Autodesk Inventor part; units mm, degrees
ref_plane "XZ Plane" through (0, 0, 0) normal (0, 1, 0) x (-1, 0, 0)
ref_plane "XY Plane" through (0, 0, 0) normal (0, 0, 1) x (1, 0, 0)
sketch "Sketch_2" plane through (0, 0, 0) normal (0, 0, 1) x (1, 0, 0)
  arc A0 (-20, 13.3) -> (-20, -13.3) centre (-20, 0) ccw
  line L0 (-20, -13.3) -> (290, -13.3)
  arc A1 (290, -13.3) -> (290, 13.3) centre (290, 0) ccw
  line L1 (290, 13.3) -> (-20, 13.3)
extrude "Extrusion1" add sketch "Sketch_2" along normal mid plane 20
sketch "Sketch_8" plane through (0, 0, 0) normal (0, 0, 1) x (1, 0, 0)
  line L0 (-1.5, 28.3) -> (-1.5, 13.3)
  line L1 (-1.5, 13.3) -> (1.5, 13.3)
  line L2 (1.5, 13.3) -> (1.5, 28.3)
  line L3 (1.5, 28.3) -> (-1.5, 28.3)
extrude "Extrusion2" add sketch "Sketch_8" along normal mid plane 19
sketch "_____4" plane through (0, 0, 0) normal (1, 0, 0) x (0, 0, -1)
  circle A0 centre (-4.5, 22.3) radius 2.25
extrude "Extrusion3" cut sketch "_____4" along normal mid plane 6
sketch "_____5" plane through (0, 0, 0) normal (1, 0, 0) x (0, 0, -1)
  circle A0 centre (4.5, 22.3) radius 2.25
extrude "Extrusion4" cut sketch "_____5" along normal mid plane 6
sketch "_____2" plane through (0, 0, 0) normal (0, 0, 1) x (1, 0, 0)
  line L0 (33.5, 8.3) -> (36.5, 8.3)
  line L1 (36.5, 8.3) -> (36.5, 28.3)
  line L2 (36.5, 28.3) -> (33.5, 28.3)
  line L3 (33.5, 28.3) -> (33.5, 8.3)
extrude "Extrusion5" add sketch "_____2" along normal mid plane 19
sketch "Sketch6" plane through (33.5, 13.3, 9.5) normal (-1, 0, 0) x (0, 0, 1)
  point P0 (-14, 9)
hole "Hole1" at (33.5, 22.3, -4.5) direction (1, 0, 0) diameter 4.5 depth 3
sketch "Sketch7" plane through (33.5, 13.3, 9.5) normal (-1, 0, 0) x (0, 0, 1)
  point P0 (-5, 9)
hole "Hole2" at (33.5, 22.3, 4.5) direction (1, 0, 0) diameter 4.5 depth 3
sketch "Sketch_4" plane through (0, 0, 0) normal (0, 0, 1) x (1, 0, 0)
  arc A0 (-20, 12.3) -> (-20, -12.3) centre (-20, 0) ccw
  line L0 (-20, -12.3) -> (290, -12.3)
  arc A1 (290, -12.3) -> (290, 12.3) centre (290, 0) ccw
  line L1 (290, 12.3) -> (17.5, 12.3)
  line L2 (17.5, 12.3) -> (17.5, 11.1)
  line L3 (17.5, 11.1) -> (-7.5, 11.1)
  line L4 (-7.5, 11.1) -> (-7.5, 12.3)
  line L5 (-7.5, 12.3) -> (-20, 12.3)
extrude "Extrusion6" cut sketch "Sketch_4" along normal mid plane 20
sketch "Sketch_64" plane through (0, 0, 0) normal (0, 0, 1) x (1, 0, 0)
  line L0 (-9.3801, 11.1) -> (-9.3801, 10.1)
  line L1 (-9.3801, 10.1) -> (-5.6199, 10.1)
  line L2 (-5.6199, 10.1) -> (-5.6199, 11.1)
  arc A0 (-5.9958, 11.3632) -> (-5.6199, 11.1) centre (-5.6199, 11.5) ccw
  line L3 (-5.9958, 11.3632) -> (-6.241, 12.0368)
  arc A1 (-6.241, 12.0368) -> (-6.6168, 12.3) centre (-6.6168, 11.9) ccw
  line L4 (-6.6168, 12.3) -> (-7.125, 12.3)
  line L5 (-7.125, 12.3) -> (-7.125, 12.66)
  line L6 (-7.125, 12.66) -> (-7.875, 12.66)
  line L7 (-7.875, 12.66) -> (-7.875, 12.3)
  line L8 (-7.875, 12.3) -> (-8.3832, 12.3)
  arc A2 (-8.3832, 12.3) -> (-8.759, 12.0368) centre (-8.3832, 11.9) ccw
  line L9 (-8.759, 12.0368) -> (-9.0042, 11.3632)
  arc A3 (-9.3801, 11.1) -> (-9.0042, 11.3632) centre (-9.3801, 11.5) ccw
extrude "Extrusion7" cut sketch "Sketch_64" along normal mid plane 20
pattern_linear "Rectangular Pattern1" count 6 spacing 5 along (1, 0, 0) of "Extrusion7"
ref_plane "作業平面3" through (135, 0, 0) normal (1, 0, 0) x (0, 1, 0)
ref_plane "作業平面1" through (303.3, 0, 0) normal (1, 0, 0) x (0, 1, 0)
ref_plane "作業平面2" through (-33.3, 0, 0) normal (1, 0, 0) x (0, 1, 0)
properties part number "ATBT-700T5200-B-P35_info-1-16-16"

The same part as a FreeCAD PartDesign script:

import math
import FreeCAD as App
import Part
import Sketcher
from FreeCAD import Vector

doc = App.newDocument("Part")
body = doc.addObject("PartDesign::Body", "Body")

sketch1 = doc.addObject("Sketcher::SketchObject", "Sketch")
body.addObject(sketch1)
sketch1.AttachmentSupport = (doc.XY_Plane, [""])
sketch1.MapMode = "FlatFace"
sketch1.addGeometry([
    Part.LineSegment(Vector(290, 13, 0), Vector(-20, 13, 0)),
    Part.ArcOfCircle(Part.Circle(Vector(-20, 0, 0), Vector(0, 0, 1), 13), math.radians(90), math.radians(270)),
    Part.LineSegment(Vector(-20, -13, 0), Vector(290, -13, 0)),
    Part.ArcOfCircle(Part.Circle(Vector(290, 0, 0), Vector(0, 0, 1), 13), math.radians(-90), math.radians(90)),
], False)
sketch1.addConstraint([
    Sketcher.Constraint("Tangent", 0, 2, 1, 1),
    Sketcher.Constraint("Tangent", 1, 2, 2, 1),
    Sketcher.Constraint("Tangent", 2, 2, 3, 1),
    Sketcher.Constraint("Tangent", 3, 2, 0, 1),
    Sketcher.Constraint("Horizontal", 0),
    Sketcher.Constraint("Horizontal", 2),
    Sketcher.Constraint("PointOnObject", 1, 3, -1),
    Sketcher.Constraint("Radius", 1, 13.3),
    Sketcher.Constraint("DistanceX", 0, 2, 0, 1, 310.0),
    Sketcher.Constraint("DistanceX", 1, 3, -1, 1, 20.0),
])
pad1 = doc.addObject("PartDesign::Pad", "Pad")
body.addObject(pad1)
pad1.Profile = sketch1
pad1.Length = 20
pad1.Midplane = True

sketch2 = doc.addObject("Sketcher::SketchObject", "Sketch001")
body.addObject(sketch2)
sketch2.AttachmentSupport = (doc.XY_Plane, [""])
sketch2.MapMode = "FlatFace"
sketch2.addGeometry([
    Part.LineSegment(Vector(1.5, 28.3, 0), Vector(-1.5, 28.3, 0)),
    Part.LineSegment(Vector(-1.5, 28.3, 0), Vector(-1.5, 13.3, 0)),
    Part.LineSegment(Vector(-1.5, 13.3, 0), Vector(1.5, 13.3, 0)),
    Part.LineSegment(Vector(1.5, 13.3, 0), Vector(1.5, 28.3, 0)),
], False)
sketch2.addConstraint([
    Sketcher.Constraint("Coincident", 0, 2, 1, 1),
    Sketcher.Constraint("Coincident", 1, 2, 2, 1),
    Sketcher.Constraint("Coincident", 2, 2, 3, 1),
    Sketcher.Constraint("Coincident", 3, 2, 0, 1),
    Sketcher.Constraint("Horizontal", 0),
    Sketcher.Constraint("Vertical", 1),
    Sketcher.Constraint("Horizontal", 2),
    Sketcher.Constraint("Vertical", 3),
    Sketcher.Constraint("DistanceX", 0, 2, 0, 1, 3.0),
    Sketcher.Constraint("DistanceY", 1, 2, 1, 1, 15.0),
    Sketcher.Constraint("DistanceX", 0, 2, -1, 1, 1.5),
    Sketcher.Constraint("DistanceY", -1, 1, 0, 2, 28.3),
])
pad2 = doc.addObject("PartDesign::Pad", "Pad001")
body.addObject(pad2)
pad2.Profile = sketch2
pad2.Length = 19
pad2.Midplane = True

sketch3 = doc.addObject("Sketcher::SketchObject", "Sketch002")
body.addObject(sketch3)
sketch3.AttachmentSupport = (doc.YZ_Plane, [""])
sketch3.MapMode = "FlatFace"
sketch3.addGeometry(Part.Circle(Vector(22.3, 4.5, 0), Vector(0, 0, 1), 2.2), False)
sketch3.addConstraint([
    Sketcher.Constraint("Diameter", 0, 4.5),
    Sketcher.Constraint("DistanceX", -1, 1, 0, 3, 22.3),
    Sketcher.Constraint("DistanceY", -1, 1, 0, 3, 4.5),
])
pocket1 = doc.addObject("PartDesign::Pocket", "Pocket")
body.addObject(pocket1)
pocket1.Profile = sketch3
pocket1.Length = 6
pocket1.Midplane = True

sketch4 = doc.addObject("Sketcher::SketchObject", "Sketch003")
body.addObject(sketch4)
sketch4.AttachmentSupport = (doc.YZ_Plane, [""])
sketch4.MapMode = "FlatFace"
sketch4.addGeometry(Part.Circle(Vector(22.3, -4.5, 0), Vector(0, 0, 1), 2.2), False)
sketch4.addConstraint([
    Sketcher.Constraint("Diameter", 0, 4.5),
    Sketcher.Constraint("DistanceX", -1, 1, 0, 3, 22.3),
    Sketcher.Constraint("DistanceY", 0, 3, -1, 1, 4.5),
])
pocket2 = doc.addObject("PartDesign::Pocket", "Pocket001")
body.addObject(pocket2)
pocket2.Profile = sketch4
pocket2.Length = 6
pocket2.Midplane = True

sketch5 = doc.addObject("Sketcher::SketchObject", "Sketch004")
body.addObject(sketch5)
sketch5.AttachmentSupport = (doc.XY_Plane, [""])
sketch5.MapMode = "FlatFace"
sketch5.addGeometry([
    Part.LineSegment(Vector(33.5, 28.3, 0), Vector(33.5, 8.3, 0)),
    Part.LineSegment(Vector(33.5, 8.3, 0), Vector(36.5, 8.3, 0)),
    Part.LineSegment(Vector(36.5, 8.3, 0), Vector(36.5, 28.3, 0)),
    Part.LineSegment(Vector(36.5, 28.3, 0), Vector(33.5, 28.3, 0)),
], False)
sketch5.addConstraint([
    Sketcher.Constraint("Coincident", 0, 2, 1, 1),
    Sketcher.Constraint("Coincident", 1, 2, 2, 1),
    Sketcher.Constraint("Coincident", 2, 2, 3, 1),
    Sketcher.Constraint("Coincident", 3, 2, 0, 1),
    Sketcher.Constraint("Vertical", 0),
    Sketcher.Constraint("Horizontal", 1),
    Sketcher.Constraint("Vertical", 2),
    Sketcher.Constraint("Horizontal", 3),
    Sketcher.Constraint("DistanceX", 1, 1, 1, 2, 3.0),
    Sketcher.Constraint("DistanceY", 0, 2, 0, 1, 20.0),
    Sketcher.Constraint("DistanceX", -1, 1, 0, 2, 33.5),
    Sketcher.Constraint("DistanceY", -1, 1, 0, 2, 8.3),
])
pad3 = doc.addObject("PartDesign::Pad", "Pad002")
body.addObject(pad3)
pad3.Profile = sketch5
pad3.Length = 19
pad3.Midplane = True

sketch6 = doc.addObject("Sketcher::SketchObject", "Sketch005")
body.addObject(sketch6)
sketch6.AttachmentSupport = (doc.YZ_Plane, [""])
sketch6.MapMode = "FlatFace"
sketch6.AttachmentOffset = App.Placement(Vector(0, 0, 33.5), App.Rotation())
sketch6.addGeometry(Part.Circle(Vector(22.3, -4.5, 0), Vector(0, 0, 1), 2.2), False)
sketch6.addConstraint([
    Sketcher.Constraint("Diameter", 0, 4.5),
    Sketcher.Constraint("DistanceX", -1, 1, 0, 3, 22.3),
    Sketcher.Constraint("DistanceY", 0, 3, -1, 1, 4.5),
])
doc.recompute()
hole = doc.addObject("PartDesign::Hole", "Hole")
body.addObject(hole)
hole.Profile = sketch6
hole.ThreadType = "None"
hole.Diameter = 4.5
hole.DepthType = "Dimension"
hole.Depth = 3
hole.DrillPoint = "Flat"
hole.Reversed = True

sketch7 = doc.addObject("Sketcher::SketchObject", "Sketch006")
body.addObject(sketch7)
sketch7.AttachmentSupport = (doc.YZ_Plane, [""])
sketch7.MapMode = "FlatFace"
sketch7.AttachmentOffset = App.Placement(Vector(0, 0, 33.5), App.Rotation())
sketch7.addGeometry(Part.Circle(Vector(22.3, 4.5, 0), Vector(0, 0, 1), 2.2), False)
sketch7.addConstraint([
    Sketcher.Constraint("Diameter", 0, 4.5),
    Sketcher.Constraint("DistanceX", -1, 1, 0, 3, 22.3),
    Sketcher.Constraint("DistanceY", -1, 1, 0, 3, 4.5),
])
doc.recompute()
hole2 = doc.addObject("PartDesign::Hole", "Hole001")
body.addObject(hole2)
hole2.Profile = sketch7
hole2.ThreadType = "None"
hole2.Diameter = 4.5
hole2.DepthType = "Dimension"
hole2.Depth = 3
hole2.DrillPoint = "Flat"
hole2.Reversed = True

sketch8 = doc.addObject("Sketcher::SketchObject", "Sketch007")
body.addObject(sketch8)
sketch8.AttachmentSupport = (doc.XY_Plane, [""])
sketch8.MapMode = "FlatFace"
sketch8.addGeometry([
    Part.LineSegment(Vector(-7.5, 12.3, 0), Vector(-20, 12.3, 0)),
    Part.ArcOfCircle(Part.Circle(Vector(-20, 0, 0), Vector(0, 0, 1), 12.3), math.radians(90), math.radians(270)),
    Part.LineSegment(Vector(-20, -12.3, 0), Vector(290, -12.3, 0)),
    Part.ArcOfCircle(Part.Circle(Vector(290, 0, 0), Vector(0, 0, 1), 12.3), math.radians(-90), math.radians(90)),
    Part.LineSegment(Vector(290, 12.3, 0), Vector(17.5, 12.3, 0)),
    Part.LineSegment(Vector(17.5, 12.3, 0), Vector(17.5, 11.1, 0)),
    Part.LineSegment(Vector(17.5, 11.1, 0), Vector(-7.5, 11.1, 0)),
    Part.LineSegment(Vector(-7.5, 11.1, 0), Vector(-7.5, 12.3, 0)),
], False)
sketch8.addConstraint([
    Sketcher.Constraint("Tangent", 0, 2, 1, 1),
    Sketcher.Constraint("Tangent", 1, 2, 2, 1),
    Sketcher.Constraint("Tangent", 2, 2, 3, 1),
    Sketcher.Constraint("Tangent", 3, 2, 4, 1),
    Sketcher.Constraint("Coincident", 4, 2, 5, 1),
    Sketcher.Constraint("Coincident", 5, 2, 6, 1),
    Sketcher.Constraint("Coincident", 6, 2, 7, 1),
    Sketcher.Constraint("Coincident", 7, 2, 0, 1),
    Sketcher.Constraint("Horizontal", 0),
    Sketcher.Constraint("Horizontal", 2),
    Sketcher.Constraint("Horizontal", 4),
    Sketcher.Constraint("Vertical", 5),
    Sketcher.Constraint("Horizontal", 6),
    Sketcher.Constraint("Vertical", 7),
    Sketcher.Constraint("Equal", 1, 3),
    Sketcher.Constraint("PointOnObject", 1, 3, -1),
    Sketcher.Constraint("Radius", 1, 12.3),
    Sketcher.Constraint("DistanceX", 2, 1, 2, 2, 310.0),
    Sketcher.Constraint("DistanceX", 6, 2, 6, 1, 25.0),
    Sketcher.Constraint("DistanceX", 0, 2, 0, 1, 12.5),
    Sketcher.Constraint("DistanceY", 5, 2, 5, 1, 1.2),
    Sketcher.Constraint("DistanceX", 1, 3, -1, 1, 20.0),
])
pocket3 = doc.addObject("PartDesign::Pocket", "Pocket002")
body.addObject(pocket3)
pocket3.Profile = sketch8
pocket3.Length = 20
pocket3.Midplane = True

sketch9 = doc.addObject("Sketcher::SketchObject", "Sketch008")
body.addObject(sketch9)
sketch9.AttachmentSupport = (doc.XY_Plane, [""])
sketch9.MapMode = "FlatFace"
sketch9.addGeometry([
    Part.ArcOfCircle(Part.Circle(Vector(-9.38, 11.5, 0), Vector(0, 0, 1), 0.4), math.radians(-90), math.radians(-20)),
    Part.LineSegment(Vector(-9.38, 11.1, 0), Vector(-9.38, 10.1, 0)),
    Part.LineSegment(Vector(-9.38, 10.1, 0), Vector(-5.62, 10.1, 0)),
    Part.LineSegment(Vector(-5.62, 10.1, 0), Vector(-5.62, 11.1, 0)),
    Part.ArcOfCircle(Part.Circle(Vector(-5.62, 11.5, 0), Vector(0, 0, 1), 0.4), math.radians(-160), math.radians(-90)),
    Part.LineSegment(Vector(-6, 11.36, 0), Vector(-6.24, 12.04, 0)),
    Part.ArcOfCircle(Part.Circle(Vector(-6.62, 11.9, 0), Vector(0, 0, 1), 0.4), math.radians(20), math.radians(90)),
    Part.LineSegment(Vector(-6.62, 12.3, 0), Vector(-7.12, 12.3, 0)),
    Part.LineSegment(Vector(-7.12, 12.3, 0), Vector(-7.12, 12.66, 0)),
    Part.LineSegment(Vector(-7.12, 12.66, 0), Vector(-7.88, 12.66, 0)),
    Part.LineSegment(Vector(-7.88, 12.66, 0), Vector(-7.88, 12.3, 0)),
    Part.LineSegment(Vector(-7.88, 12.3, 0), Vector(-8.38, 12.3, 0)),
    Part.ArcOfCircle(Part.Circle(Vector(-8.38, 11.9, 0), Vector(0, 0, 1), 0.4), math.radians(90), math.radians(160)),
    Part.LineSegment(Vector(-8.76, 12.04, 0), Vector(-9, 11.36, 0)),
], False)
sketch9.addConstraint([
    Sketcher.Constraint("Coincident", 0, 1, 1, 1),
    Sketcher.Constraint("Coincident", 1, 2, 2, 1),
    Sketcher.Constraint("Coincident", 2, 2, 3, 1),
    Sketcher.Constraint("Coincident", 3, 2, 4, 2),
    Sketcher.Constraint("Tangent", 4, 1, 5, 1),
    Sketcher.Constraint("Tangent", 5, 2, 6, 1),
    Sketcher.Constraint("Tangent", 6, 2, 7, 1),
    Sketcher.Constraint("Coincident", 7, 2, 8, 1),
    Sketcher.Constraint("Coincident", 8, 2, 9, 1),
    Sketcher.Constraint("Coincident", 9, 2, 10, 1),
    Sketcher.Constraint("Coincident", 10, 2, 11, 1),
    Sketcher.Constraint("Tangent", 11, 2, 12, 1),
    Sketcher.Constraint("Tangent", 12, 2, 13, 1),
    Sketcher.Constraint("Tangent", 13, 2, 0, 2),
    Sketcher.Constraint("Vertical", 1),
    Sketcher.Constraint("Horizontal", 2),
    Sketcher.Constraint("Vertical", 3),
    Sketcher.Constraint("Horizontal", 7),
    Sketcher.Constraint("Vertical", 8),
    Sketcher.Constraint("Horizontal", 9),
    Sketcher.Constraint("Vertical", 10),
    Sketcher.Constraint("Horizontal", 11),
    Sketcher.Constraint("Equal", 0, 4),
    Sketcher.Constraint("Equal", 4, 6),
    Sketcher.Constraint("Equal", 6, 12),
    Sketcher.Constraint("Horizontal", 0, 3, 4, 3),
    Sketcher.Constraint("Horizontal", 6, 3, 12, 3),
    Sketcher.Constraint("Horizontal", 5, 2, 12, 2),
    Sketcher.Constraint("Vertical", 4, 3, 2, 2),
    Sketcher.Constraint("Equal", 7, 11),
    Sketcher.Constraint("Radius", 0, 0.4),
    Sketcher.Constraint("DistanceY", 1, 2, 1, 1, 1.0),
    Sketcher.Constraint("DistanceX", 9, 2, 9, 1, 0.75),
    Sketcher.Constraint("DistanceY", 8, 1, 8, 2, 0.36),
    Sketcher.Constraint("DistanceY", -1, 1, 0, 3, 11.5),
    Sketcher.Constraint("DistanceY", -1, 1, 6, 3, 11.9),
    Sketcher.Constraint("DistanceX", 0, 3, -1, 1, 9.38),
    Sketcher.Constraint("DistanceX", 4, 3, -1, 1, 5.62),
    Sketcher.Constraint("DistanceX", 0, 1, -1, 1, 9.38),
    Sketcher.Constraint("DistanceX", 7, 2, 7, 1, 0.5082),
])
pocket4 = doc.addObject("PartDesign::Pocket", "Pocket003")
body.addObject(pocket4)
pocket4.Profile = sketch9
pocket4.Length = 20
pocket4.Midplane = True
doc.recompute()

linearpattern = doc.addObject("PartDesign::LinearPattern", "LinearPattern")
body.addObject(linearpattern)
linearpattern.Originals = [pocket4]
linearpattern.Direction = (doc.X_Axis, [""])
linearpattern.Mode = "offset"
linearpattern.Offset = 5
linearpattern.Occurrences = 6
body.Tip = linearpattern

doc.recompute()
